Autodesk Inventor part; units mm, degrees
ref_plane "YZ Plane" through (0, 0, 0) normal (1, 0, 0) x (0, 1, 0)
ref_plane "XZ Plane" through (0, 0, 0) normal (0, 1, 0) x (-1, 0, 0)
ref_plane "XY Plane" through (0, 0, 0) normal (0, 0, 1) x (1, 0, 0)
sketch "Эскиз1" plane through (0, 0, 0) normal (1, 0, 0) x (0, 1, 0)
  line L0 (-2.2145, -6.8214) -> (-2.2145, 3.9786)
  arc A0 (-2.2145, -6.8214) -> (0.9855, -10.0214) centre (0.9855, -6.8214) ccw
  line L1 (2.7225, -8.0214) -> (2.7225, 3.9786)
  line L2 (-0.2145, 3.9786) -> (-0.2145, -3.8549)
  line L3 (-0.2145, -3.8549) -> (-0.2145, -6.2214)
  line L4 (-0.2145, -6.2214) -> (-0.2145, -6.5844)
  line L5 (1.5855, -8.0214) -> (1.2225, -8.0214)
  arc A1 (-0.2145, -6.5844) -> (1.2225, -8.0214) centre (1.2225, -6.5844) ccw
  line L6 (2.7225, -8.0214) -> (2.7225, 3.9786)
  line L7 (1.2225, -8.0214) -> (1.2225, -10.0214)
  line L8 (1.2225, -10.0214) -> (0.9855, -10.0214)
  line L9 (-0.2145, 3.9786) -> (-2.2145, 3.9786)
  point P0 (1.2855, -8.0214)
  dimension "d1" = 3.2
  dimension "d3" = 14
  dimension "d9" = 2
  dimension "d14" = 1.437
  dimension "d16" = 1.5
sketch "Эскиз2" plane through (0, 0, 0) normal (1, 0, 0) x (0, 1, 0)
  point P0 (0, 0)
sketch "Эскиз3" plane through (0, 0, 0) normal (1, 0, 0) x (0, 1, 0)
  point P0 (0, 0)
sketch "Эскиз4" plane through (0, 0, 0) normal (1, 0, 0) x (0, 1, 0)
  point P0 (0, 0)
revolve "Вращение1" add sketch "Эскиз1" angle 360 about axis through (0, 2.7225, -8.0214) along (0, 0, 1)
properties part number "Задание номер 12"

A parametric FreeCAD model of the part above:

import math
import FreeCAD as App
import Part
import Sketcher
from FreeCAD import Vector

doc = App.newDocument("Part")
body = doc.addObject("PartDesign::Body", "Body")

sketch1 = doc.addObject("Sketcher::SketchObject", "Sketch")
body.addObject(sketch1)
sketch1.AttachmentSupport = (doc.YZ_Plane, [""])
sketch1.MapMode = "FlatFace"
sketch1.addGeometry([
    Part.LineSegment(Vector(-2.21, 3.98, 0), Vector(-2.21, -6.82, 0)),
    Part.ArcOfCircle(Part.Circle(Vector(0.99, -6.82, 0), Vector(0, 0, 1), 3.2), math.radians(180), math.radians(270)),
    Part.LineSegment(Vector(0.99, -10.02, 0), Vector(1.22, -10.02, 0)),
    Part.LineSegment(Vector(1.22, -10.02, 0), Vector(1.22, -8.02, 0)),
    Part.ArcOfCircle(Part.Circle(Vector(1.22, -6.58, 0), Vector(0, 0, 1), 1.44), math.radians(180), math.radians(270)),
    Part.LineSegment(Vector(-0.21, -6.58, 0), Vector(-0.21, 3.98, 0)),
    Part.LineSegment(Vector(-0.21, 3.98, 0), Vector(-2.21, 3.98, 0)),
], False)
sketch1.addGeometry(Part.LineSegment(Vector(2.72, -10.02, 0), Vector(2.72, 3.98, 0)), True)
sketch1.addConstraint([
    Sketcher.Constraint("Tangent", 0, 2, 1, 1),
    Sketcher.Constraint("Tangent", 1, 2, 2, 1),
    Sketcher.Constraint("Coincident", 2, 2, 3, 1),
    Sketcher.Constraint("Coincident", 3, 2, 4, 2),
    Sketcher.Constraint("Tangent", 4, 1, 5, 1),
    Sketcher.Constraint("Coincident", 5, 2, 6, 1),
    Sketcher.Constraint("Coincident", 6, 2, 0, 1),
    Sketcher.Constraint("Vertical", 0),
    Sketcher.Constraint("Horizontal", 2),
    Sketcher.Constraint("Vertical", 3),
    Sketcher.Constraint("Vertical", 5),
    Sketcher.Constraint("Horizontal", 6),
    Sketcher.Constraint("Vertical", 7),
    Sketcher.Constraint("Horizontal", 2, 2, 7, 1),
    Sketcher.Constraint("Horizontal", 6, 2, 7, 2),
    Sketcher.Constraint("Vertical", 4, 3, 2, 2),
    Sketcher.Constraint("Equal", 6, 3),
    Sketcher.Constraint("Radius", 1, 3.2),
    Sketcher.Constraint("DistanceX", 6, 2, 6, 1, 2.0),
    Sketcher.Constraint("DistanceY", 7, 1, 7, 2, 14.0),
    Sketcher.Constraint("Radius", 4, 1.437),
    Sketcher.Constraint("DistanceX", 2, 2, 7, 1, 1.5),
    Sketcher.Constraint("DistanceX", -1, 1, 1, 3, 0.9855),
    Sketcher.Constraint("DistanceY", 1, 3, -1, 1, 6.8214),
])
revolution = doc.addObject("PartDesign::Revolution", "Revolution")
body.addObject(revolution)
revolution.Profile = sketch1
revolution.ReferenceAxis = (sketch1, ["Axis0"])
revolution.Angle = 360

doc.recompute()
